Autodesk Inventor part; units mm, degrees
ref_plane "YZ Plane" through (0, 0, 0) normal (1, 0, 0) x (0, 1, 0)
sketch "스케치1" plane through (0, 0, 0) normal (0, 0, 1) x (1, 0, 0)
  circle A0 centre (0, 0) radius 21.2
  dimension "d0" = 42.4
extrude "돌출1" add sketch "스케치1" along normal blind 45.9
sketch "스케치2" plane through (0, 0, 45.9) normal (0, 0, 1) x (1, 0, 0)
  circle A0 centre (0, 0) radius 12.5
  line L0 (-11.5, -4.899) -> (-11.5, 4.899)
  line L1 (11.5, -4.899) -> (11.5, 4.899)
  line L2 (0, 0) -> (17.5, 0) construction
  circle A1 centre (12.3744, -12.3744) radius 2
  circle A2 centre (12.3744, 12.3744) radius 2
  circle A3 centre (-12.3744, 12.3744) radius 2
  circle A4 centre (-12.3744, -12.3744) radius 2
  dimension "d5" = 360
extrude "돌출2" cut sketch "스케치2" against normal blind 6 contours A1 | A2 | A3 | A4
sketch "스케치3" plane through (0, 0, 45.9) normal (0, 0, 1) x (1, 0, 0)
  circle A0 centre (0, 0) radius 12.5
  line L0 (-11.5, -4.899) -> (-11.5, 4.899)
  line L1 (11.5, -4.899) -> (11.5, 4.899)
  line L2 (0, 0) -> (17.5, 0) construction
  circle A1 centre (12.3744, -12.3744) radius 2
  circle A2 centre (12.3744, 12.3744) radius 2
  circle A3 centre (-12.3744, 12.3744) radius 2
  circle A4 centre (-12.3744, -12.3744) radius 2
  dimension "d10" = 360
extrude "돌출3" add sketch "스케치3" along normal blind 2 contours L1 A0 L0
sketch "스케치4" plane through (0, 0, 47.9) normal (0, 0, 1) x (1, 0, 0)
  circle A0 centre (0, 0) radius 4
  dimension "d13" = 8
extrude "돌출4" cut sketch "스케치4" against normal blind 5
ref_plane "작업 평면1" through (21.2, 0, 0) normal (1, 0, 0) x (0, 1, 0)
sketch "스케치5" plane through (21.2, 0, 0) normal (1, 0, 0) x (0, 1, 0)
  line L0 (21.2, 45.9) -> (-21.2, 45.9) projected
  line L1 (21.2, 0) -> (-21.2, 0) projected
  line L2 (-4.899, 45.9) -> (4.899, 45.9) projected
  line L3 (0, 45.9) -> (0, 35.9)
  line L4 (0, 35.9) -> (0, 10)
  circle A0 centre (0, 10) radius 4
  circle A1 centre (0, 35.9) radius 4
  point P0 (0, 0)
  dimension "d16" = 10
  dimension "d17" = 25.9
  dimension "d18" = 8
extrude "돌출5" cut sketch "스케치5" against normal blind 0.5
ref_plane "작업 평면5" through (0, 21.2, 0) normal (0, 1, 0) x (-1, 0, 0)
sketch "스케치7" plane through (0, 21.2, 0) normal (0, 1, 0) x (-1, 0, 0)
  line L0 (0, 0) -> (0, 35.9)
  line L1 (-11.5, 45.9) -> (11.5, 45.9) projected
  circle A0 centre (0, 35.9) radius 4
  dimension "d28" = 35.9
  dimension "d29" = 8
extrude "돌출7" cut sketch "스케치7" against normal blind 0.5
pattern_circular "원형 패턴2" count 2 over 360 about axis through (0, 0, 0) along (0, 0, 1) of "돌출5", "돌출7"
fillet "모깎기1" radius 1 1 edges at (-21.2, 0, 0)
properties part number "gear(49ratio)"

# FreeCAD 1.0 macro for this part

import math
import FreeCAD as App
import Part
import Sketcher

V = App.Vector


def edges_at(feature, points):
    """Names of the edges that pass closest to the given points."""
    edges = feature.Shape.Edges
    near = lambda p: min(range(len(edges)), key=lambda i: edges[i].distToShape(Part.Vertex(*p))[0])
    return sorted({f"Edge{near(p) + 1}" for p in points})

doc = App.newDocument("Part")
body = doc.addObject("PartDesign::Body", "Body")

# Sketch on XY plane
sketch1 = body.newObject("Sketcher::SketchObject", "Sketch")
sketch1.AttachmentSupport = (doc.getObject("XY_Plane"), [""])
sketch1.MapMode = "FlatFace"
sketch1.addGeometry(Part.Circle(V(0, 0, 0), V(0, 0, 1), 21), False)
sketch1.addConstraint([
    Sketcher.Constraint("Coincident", 0, 3, -1, 1),
    Sketcher.Constraint("Diameter", 0, 42.4),
])
pad1 = body.newObject("PartDesign::Pad", "Pad")
pad1.Profile = sketch1
pad1.Length = 45.9

# Sketch on XY plane
sketch2 = body.newObject("Sketcher::SketchObject", "Sketch001")
sketch2.AttachmentSupport = (doc.getObject("XY_Plane"), [""])
sketch2.MapMode = "FlatFace"
sketch2.AttachmentOffset = App.Placement(V(0, 0, 45.9), App.Rotation())
sketch2.addGeometry([
    Part.Circle(V(12.4, -12.4, 0), V(0, 0, 1), 2),
    Part.Circle(V(12.4, 12.4, 0), V(0, 0, 1), 2),
    Part.Circle(V(-12.4, 12.4, 0), V(0, 0, 1), 2),
    Part.Circle(V(-12.4, -12.4, 0), V(0, 0, 1), 2),
], False)
sketch2.addConstraint([
    Sketcher.Constraint("Equal", 0, 1),
    Sketcher.Constraint("Equal", 1, 2),
    Sketcher.Constraint("Equal", 2, 3),
    Sketcher.Constraint("Symmetric", 0, 3, 2, 3, -1, 1),
    Sketcher.Constraint("Symmetric", 1, 3, 3, 3, -1, 1),
    Sketcher.Constraint("Symmetric", 1, 3, 2, 3, -2),
    Sketcher.Constraint("Diameter", 0, 4.0),
    Sketcher.Constraint("DistanceX", -1, 1, 0, 3, 12.3744),
    Sketcher.Constraint("DistanceY", 0, 3, -1, 1, 12.3744),
])
pocket1 = body.newObject("PartDesign::Pocket", "Pocket")
pocket1.Profile = sketch2
pocket1.Length = 6

# Sketch on XY plane
sketch3 = body.newObject("Sketcher::SketchObject", "Sketch002")
sketch3.AttachmentSupport = (doc.getObject("XY_Plane"), [""])
sketch3.MapMode = "FlatFace"
sketch3.AttachmentOffset = App.Placement(V(0, 0, 45.9), App.Rotation())
sketch3.addGeometry([
    Part.LineSegment(V(12, -5, 0), V(12, 5, 0)),
    Part.ArcOfCircle(Part.Circle(V(0, 0, 0), V(0, 0, 1), 12), math.radians(23), math.radians(157)),
    Part.LineSegment(V(-12, 5, 0), V(-12, -5, 0)),
    Part.ArcOfCircle(Part.Circle(V(0, 0, 0), V(0, 0, 1), 12), math.radians(-157), math.radians(-23)),
], False)
sketch3.addConstraint([
    Sketcher.Constraint("Coincident", 0, 2, 1, 1),
    Sketcher.Constraint("Coincident", 1, 2, 2, 1),
    Sketcher.Constraint("Coincident", 2, 2, 3, 1),
    Sketcher.Constraint("Coincident", 3, 2, 0, 1),
    Sketcher.Constraint("Vertical", 0),
    Sketcher.Constraint("Vertical", 2),
    Sketcher.Constraint("Coincident", 1, 3, -1, 1),
    Sketcher.Constraint("Coincident", 3, 3, -1, 1),
    Sketcher.Constraint("Equal", 1, 3),
    Sketcher.Constraint("Horizontal", 0, 2, 1, 2),
    Sketcher.Constraint("Radius", 1, 12.5),
    Sketcher.Constraint("DistanceX", 1, 2, 0, 2, 23.0),
])
pad2 = body.newObject("PartDesign::Pad", "Pad001")
pad2.Profile = sketch3
pad2.Length = 2

# Sketch on XY plane
sketch4 = body.newObject("Sketcher::SketchObject", "Sketch003")
sketch4.AttachmentSupport = (doc.getObject("XY_Plane"), [""])
sketch4.MapMode = "FlatFace"
sketch4.AttachmentOffset = App.Placement(V(0, 0, 47.9), App.Rotation())
sketch4.addGeometry(Part.Circle(V(0, 0, 0), V(0, 0, 1), 4), False)
sketch4.addConstraint([
    Sketcher.Constraint("Coincident", 0, 3, -1, 1),
    Sketcher.Constraint("Diameter", 0, 8.0),
])
pocket2 = body.newObject("PartDesign::Pocket", "Pocket001")
pocket2.Profile = sketch4
pocket2.Length = 5

# Sketch on YZ plane
sketch5 = body.newObject("Sketcher::SketchObject", "Sketch004")
sketch5.AttachmentSupport = (doc.getObject("YZ_Plane"), [""])
sketch5.MapMode = "FlatFace"
sketch5.AttachmentOffset = App.Placement(V(0, 0, 21.2), App.Rotation())
sketch5.addGeometry([
    Part.Circle(V(0, 35.9, 0), V(0, 0, 1), 4),
    Part.Circle(V(0, 10, 0), V(0, 0, 1), 4),
], False)
sketch5.addConstraint([
    Sketcher.Constraint("Equal", 0, 1),
    Sketcher.Constraint("PointOnObject", 0, 3, -2),
    Sketcher.Constraint("PointOnObject", 1, 3, -2),
    Sketcher.Constraint("Diameter", 0, 8.0),
    Sketcher.Constraint("DistanceY", -1, 1, 1, 3, 10.0),
    Sketcher.Constraint("DistanceY", 1, 3, 0, 3, 25.9),
])
pocket3 = body.newObject("PartDesign::Pocket", "Pocket002")
pocket3.Profile = sketch5
pocket3.Length = 0.5

# Sketch on XZ plane
sketch6 = body.newObject("Sketcher::SketchObject", "Sketch005")
sketch6.AttachmentSupport = (doc.getObject("XZ_Plane"), [""])
sketch6.MapMode = "FlatFace"
sketch6.AttachmentOffset = App.Placement(V(0, 0, -21.2), App.Rotation())
sketch6.addGeometry(Part.Circle(V(0, 35.9, 0), V(0, 0, 1), 4), False)
sketch6.addConstraint([
    Sketcher.Constraint("PointOnObject", 0, 3, -2),
    Sketcher.Constraint("Diameter", 0, 8.0),
    Sketcher.Constraint("DistanceY", -1, 1, 0, 3, 35.9),
])
pocket4 = body.newObject("PartDesign::Pocket", "Pocket003")
pocket4.Profile = sketch6
pocket4.Length = 0.5
pocket4.Reversed = True
doc.recompute()

polarpattern = body.newObject("PartDesign::PolarPattern", "PolarPattern")
polarpattern.Originals = [pocket3, pocket4]
polarpattern.Axis = (doc.getObject("Z_Axis"), [""])
polarpattern.Angle = 360
polarpattern.Occurrences = 2
body.Tip = polarpattern
doc.recompute()

fillet = body.newObject("PartDesign::Fillet", "Fillet")
fillet.Base = (polarpattern, edges_at(polarpattern, [(-21.2, 0, 0)]))
fillet.Radius = 1

doc.recompute()
